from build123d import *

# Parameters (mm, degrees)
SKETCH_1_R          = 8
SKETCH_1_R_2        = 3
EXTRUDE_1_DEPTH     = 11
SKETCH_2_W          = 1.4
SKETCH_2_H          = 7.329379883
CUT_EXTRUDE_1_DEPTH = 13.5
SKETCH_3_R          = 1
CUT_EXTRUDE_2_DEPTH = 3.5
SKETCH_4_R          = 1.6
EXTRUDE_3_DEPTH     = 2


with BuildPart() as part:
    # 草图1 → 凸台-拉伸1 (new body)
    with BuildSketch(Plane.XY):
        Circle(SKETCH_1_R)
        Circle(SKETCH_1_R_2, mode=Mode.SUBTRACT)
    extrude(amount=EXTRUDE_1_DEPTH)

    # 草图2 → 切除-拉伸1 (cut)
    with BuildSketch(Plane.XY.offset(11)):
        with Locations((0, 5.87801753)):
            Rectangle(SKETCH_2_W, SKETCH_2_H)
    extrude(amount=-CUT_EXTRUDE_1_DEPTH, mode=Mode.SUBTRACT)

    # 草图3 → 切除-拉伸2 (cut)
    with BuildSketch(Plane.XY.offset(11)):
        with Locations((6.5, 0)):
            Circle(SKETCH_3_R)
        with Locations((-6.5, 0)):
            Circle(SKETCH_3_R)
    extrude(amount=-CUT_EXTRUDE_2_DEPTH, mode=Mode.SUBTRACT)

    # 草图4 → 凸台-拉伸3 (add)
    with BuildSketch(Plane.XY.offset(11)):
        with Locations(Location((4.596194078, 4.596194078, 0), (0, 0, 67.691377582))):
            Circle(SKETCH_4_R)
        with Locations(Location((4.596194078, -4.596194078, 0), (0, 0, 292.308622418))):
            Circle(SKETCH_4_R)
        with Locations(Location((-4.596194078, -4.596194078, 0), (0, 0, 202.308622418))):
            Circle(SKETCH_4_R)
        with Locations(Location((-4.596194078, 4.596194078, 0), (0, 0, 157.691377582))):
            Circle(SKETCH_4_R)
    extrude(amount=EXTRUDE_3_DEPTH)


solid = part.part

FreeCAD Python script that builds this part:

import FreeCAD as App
import Part
import Sketcher
from FreeCAD import Vector
Q = App.Units.Quantity


def add_polygon(sketch, points):
    """Adds a closed chain of lines whose ends are joined by coincident constraints."""
    first, n = sketch.GeometryCount, len(points)
    for a, b in zip(points, points[1:] + points[:1]):
        sketch.addGeometry(Part.LineSegment(App.Vector(*a, 0), App.Vector(*b, 0)), False)
    for i in range(n):
        sketch.addConstraint(Sketcher.Constraint("Coincident", first + i, 2, first + (i + 1) % n, 1))

doc = App.newDocument("Part")
params = doc.addObject("Spreadsheet::Sheet", "Params")
for row, (alias, value) in enumerate([
    ("sketch1_diameter", "16 mm"),
    ("sketch1_diameter2", "6 mm"),
    ("pad1_length", "11 mm"),
    ("sketch2_width", "1.4 mm"),
    ("pocket1_length", "13.5 mm"),
    ("sketch3_diameter", "2 mm"),
    ("pocket2_length", "3.5 mm"),
    ("sketch4_diameter", "3.2 mm"),
    ("pad2_length", "2 mm"),
], start=1):
    params.set(f"A{row}", alias)
    params.set(f"B{row}", "=" + value)
    params.setAlias(f"B{row}", alias)

body = doc.addObject("PartDesign::Body", "Body")

# Sketch on XY plane
sketch1 = doc.addObject("Sketcher::SketchObject", "Sketch")
body.addObject(sketch1)
sketch1.AttachmentSupport = (doc.XY_Plane, [""])
sketch1.MapMode = "FlatFace"
sketch1.addGeometry([
    Part.Circle(Vector(0, 0, 0), Vector(0, 0, 1), 8),
    Part.Circle(Vector(0, 0, 0), Vector(0, 0, 1), 3),
], False)
sketch1.addConstraint([
    Sketcher.Constraint("Coincident", 0, 3, -1, 1),
    Sketcher.Constraint("Coincident", 1, 3, -1, 1),
    Sketcher.Constraint("Diameter", 0, Q("16 mm")),
    Sketcher.Constraint("Diameter", 1, Q("6 mm")),
])
sketch1.setExpression("Constraints[2]", "Params.sketch1_diameter")
sketch1.setExpression("Constraints[3]", "Params.sketch1_diameter2")
pad1 = doc.addObject("PartDesign::Pad", "Pad")
body.addObject(pad1)
pad1.Profile = sketch1
pad1.setExpression("Length", "Params.pad1_length")

# Sketch on XY plane
sketch2 = doc.addObject("Sketcher::SketchObject", "Sketch001")
body.addObject(sketch2)
sketch2.AttachmentSupport = (doc.XY_Plane, [""])
sketch2.MapMode = "FlatFace"
sketch2.AttachmentOffset = App.Placement(Vector(0, 0, 11), App.Rotation())
add_polygon(sketch2, [(-0.7, 9.542707), (-0.7, 2.213328), (0.7, 2.213328), (0.7, 9.542707)])  # lines 0-3
sketch2.addConstraint([
    Sketcher.Constraint("Vertical", 0),
    Sketcher.Constraint("Horizontal", 1),
    Sketcher.Constraint("Vertical", 2),
    Sketcher.Constraint("Horizontal", 3),
    Sketcher.Constraint("DistanceX", 1, 1, 1, 2, Q("1.4 mm")),
    Sketcher.Constraint("DistanceX", 0, 2, -1, 1, Q("0.7 mm")),
    Sketcher.Constraint("DistanceY", 0, 2, 0, 1, Q("7.32938 mm")),
    Sketcher.Constraint("DistanceY", -1, 1, 0, 2, Q("2.213328 mm")),
])
sketch2.setExpression("Constraints[8]", "Params.sketch2_width")
pocket1 = doc.addObject("PartDesign::Pocket", "Pocket")
body.addObject(pocket1)
pocket1.Profile = sketch2
pocket1.setExpression("Length", "Params.pocket1_length")

# Sketch on XY plane
sketch3 = doc.addObject("Sketcher::SketchObject", "Sketch002")
body.addObject(sketch3)
sketch3.AttachmentSupport = (doc.XY_Plane, [""])
sketch3.MapMode = "FlatFace"
sketch3.AttachmentOffset = App.Placement(Vector(0, 0, 11), App.Rotation())
sketch3.addGeometry([
    Part.Circle(Vector(6.5, 0, 0), Vector(0, 0, 1), 1),
    Part.Circle(Vector(-6.5, 0, 0), Vector(0, 0, 1), 1),
], False)
sketch3.addConstraint([
    Sketcher.Constraint("Equal", 0, 1),
    Sketcher.Constraint("Symmetric", 0, 3, 1, 3, -1, 1),
    Sketcher.Constraint("PointOnObject", 0, 3, -1),
    Sketcher.Constraint("Diameter", 0, Q("2 mm")),
    Sketcher.Constraint("DistanceX", 1, 3, 0, 3, Q("13 mm")),
])
sketch3.setExpression("Constraints[3]", "Params.sketch3_diameter")
pocket2 = doc.addObject("PartDesign::Pocket", "Pocket001")
body.addObject(pocket2)
pocket2.Profile = sketch3
pocket2.setExpression("Length", "Params.pocket2_length")

# Sketch on XY plane
sketch4 = doc.addObject("Sketcher::SketchObject", "Sketch003")
body.addObject(sketch4)
sketch4.AttachmentSupport = (doc.XY_Plane, [""])
sketch4.MapMode = "FlatFace"
sketch4.AttachmentOffset = App.Placement(Vector(0, 0, 11), App.Rotation())
sketch4.addGeometry([
    Part.Circle(Vector(4.596194, 4.596194, 0), Vector(0, 0, 1), 1.6),
    Part.Circle(Vector(4.596194, -4.596194, 0), Vector(0, 0, 1), 1.6),
    Part.Circle(Vector(-4.596194, -4.596194, 0), Vector(0, 0, 1), 1.6),
    Part.Circle(Vector(-4.596194, 4.596194, 0), Vector(0, 0, 1), 1.6),
], False)
sketch4.addConstraint([
    Sketcher.Constraint("Equal", 0, 1),
    Sketcher.Constraint("Equal", 1, 2),
    Sketcher.Constraint("Equal", 2, 3),
    Sketcher.Constraint("Symmetric", 0, 3, 2, 3, -1, 1),
    Sketcher.Constraint("Symmetric", 1, 3, 3, 3, -1, 1),
    Sketcher.Constraint("Symmetric", 1, 3, 2, 3, -2),
    Sketcher.Constraint("Diameter", 0, Q("3.2 mm")),
    Sketcher.Constraint("DistanceY", 1, 3, 0, 3, Q("9.192388 mm")),
    Sketcher.Constraint("DistanceX", 2, 3, 1, 3, Q("9.192388 mm")),
])
sketch4.setExpression("Constraints[6]", "Params.sketch4_diameter")
pad2 = doc.addObject("PartDesign::Pad", "Pad001")
body.addObject(pad2)
pad2.Profile = sketch4
pad2.setExpression("Length", "Params.pad2_length")

doc.recompute()
